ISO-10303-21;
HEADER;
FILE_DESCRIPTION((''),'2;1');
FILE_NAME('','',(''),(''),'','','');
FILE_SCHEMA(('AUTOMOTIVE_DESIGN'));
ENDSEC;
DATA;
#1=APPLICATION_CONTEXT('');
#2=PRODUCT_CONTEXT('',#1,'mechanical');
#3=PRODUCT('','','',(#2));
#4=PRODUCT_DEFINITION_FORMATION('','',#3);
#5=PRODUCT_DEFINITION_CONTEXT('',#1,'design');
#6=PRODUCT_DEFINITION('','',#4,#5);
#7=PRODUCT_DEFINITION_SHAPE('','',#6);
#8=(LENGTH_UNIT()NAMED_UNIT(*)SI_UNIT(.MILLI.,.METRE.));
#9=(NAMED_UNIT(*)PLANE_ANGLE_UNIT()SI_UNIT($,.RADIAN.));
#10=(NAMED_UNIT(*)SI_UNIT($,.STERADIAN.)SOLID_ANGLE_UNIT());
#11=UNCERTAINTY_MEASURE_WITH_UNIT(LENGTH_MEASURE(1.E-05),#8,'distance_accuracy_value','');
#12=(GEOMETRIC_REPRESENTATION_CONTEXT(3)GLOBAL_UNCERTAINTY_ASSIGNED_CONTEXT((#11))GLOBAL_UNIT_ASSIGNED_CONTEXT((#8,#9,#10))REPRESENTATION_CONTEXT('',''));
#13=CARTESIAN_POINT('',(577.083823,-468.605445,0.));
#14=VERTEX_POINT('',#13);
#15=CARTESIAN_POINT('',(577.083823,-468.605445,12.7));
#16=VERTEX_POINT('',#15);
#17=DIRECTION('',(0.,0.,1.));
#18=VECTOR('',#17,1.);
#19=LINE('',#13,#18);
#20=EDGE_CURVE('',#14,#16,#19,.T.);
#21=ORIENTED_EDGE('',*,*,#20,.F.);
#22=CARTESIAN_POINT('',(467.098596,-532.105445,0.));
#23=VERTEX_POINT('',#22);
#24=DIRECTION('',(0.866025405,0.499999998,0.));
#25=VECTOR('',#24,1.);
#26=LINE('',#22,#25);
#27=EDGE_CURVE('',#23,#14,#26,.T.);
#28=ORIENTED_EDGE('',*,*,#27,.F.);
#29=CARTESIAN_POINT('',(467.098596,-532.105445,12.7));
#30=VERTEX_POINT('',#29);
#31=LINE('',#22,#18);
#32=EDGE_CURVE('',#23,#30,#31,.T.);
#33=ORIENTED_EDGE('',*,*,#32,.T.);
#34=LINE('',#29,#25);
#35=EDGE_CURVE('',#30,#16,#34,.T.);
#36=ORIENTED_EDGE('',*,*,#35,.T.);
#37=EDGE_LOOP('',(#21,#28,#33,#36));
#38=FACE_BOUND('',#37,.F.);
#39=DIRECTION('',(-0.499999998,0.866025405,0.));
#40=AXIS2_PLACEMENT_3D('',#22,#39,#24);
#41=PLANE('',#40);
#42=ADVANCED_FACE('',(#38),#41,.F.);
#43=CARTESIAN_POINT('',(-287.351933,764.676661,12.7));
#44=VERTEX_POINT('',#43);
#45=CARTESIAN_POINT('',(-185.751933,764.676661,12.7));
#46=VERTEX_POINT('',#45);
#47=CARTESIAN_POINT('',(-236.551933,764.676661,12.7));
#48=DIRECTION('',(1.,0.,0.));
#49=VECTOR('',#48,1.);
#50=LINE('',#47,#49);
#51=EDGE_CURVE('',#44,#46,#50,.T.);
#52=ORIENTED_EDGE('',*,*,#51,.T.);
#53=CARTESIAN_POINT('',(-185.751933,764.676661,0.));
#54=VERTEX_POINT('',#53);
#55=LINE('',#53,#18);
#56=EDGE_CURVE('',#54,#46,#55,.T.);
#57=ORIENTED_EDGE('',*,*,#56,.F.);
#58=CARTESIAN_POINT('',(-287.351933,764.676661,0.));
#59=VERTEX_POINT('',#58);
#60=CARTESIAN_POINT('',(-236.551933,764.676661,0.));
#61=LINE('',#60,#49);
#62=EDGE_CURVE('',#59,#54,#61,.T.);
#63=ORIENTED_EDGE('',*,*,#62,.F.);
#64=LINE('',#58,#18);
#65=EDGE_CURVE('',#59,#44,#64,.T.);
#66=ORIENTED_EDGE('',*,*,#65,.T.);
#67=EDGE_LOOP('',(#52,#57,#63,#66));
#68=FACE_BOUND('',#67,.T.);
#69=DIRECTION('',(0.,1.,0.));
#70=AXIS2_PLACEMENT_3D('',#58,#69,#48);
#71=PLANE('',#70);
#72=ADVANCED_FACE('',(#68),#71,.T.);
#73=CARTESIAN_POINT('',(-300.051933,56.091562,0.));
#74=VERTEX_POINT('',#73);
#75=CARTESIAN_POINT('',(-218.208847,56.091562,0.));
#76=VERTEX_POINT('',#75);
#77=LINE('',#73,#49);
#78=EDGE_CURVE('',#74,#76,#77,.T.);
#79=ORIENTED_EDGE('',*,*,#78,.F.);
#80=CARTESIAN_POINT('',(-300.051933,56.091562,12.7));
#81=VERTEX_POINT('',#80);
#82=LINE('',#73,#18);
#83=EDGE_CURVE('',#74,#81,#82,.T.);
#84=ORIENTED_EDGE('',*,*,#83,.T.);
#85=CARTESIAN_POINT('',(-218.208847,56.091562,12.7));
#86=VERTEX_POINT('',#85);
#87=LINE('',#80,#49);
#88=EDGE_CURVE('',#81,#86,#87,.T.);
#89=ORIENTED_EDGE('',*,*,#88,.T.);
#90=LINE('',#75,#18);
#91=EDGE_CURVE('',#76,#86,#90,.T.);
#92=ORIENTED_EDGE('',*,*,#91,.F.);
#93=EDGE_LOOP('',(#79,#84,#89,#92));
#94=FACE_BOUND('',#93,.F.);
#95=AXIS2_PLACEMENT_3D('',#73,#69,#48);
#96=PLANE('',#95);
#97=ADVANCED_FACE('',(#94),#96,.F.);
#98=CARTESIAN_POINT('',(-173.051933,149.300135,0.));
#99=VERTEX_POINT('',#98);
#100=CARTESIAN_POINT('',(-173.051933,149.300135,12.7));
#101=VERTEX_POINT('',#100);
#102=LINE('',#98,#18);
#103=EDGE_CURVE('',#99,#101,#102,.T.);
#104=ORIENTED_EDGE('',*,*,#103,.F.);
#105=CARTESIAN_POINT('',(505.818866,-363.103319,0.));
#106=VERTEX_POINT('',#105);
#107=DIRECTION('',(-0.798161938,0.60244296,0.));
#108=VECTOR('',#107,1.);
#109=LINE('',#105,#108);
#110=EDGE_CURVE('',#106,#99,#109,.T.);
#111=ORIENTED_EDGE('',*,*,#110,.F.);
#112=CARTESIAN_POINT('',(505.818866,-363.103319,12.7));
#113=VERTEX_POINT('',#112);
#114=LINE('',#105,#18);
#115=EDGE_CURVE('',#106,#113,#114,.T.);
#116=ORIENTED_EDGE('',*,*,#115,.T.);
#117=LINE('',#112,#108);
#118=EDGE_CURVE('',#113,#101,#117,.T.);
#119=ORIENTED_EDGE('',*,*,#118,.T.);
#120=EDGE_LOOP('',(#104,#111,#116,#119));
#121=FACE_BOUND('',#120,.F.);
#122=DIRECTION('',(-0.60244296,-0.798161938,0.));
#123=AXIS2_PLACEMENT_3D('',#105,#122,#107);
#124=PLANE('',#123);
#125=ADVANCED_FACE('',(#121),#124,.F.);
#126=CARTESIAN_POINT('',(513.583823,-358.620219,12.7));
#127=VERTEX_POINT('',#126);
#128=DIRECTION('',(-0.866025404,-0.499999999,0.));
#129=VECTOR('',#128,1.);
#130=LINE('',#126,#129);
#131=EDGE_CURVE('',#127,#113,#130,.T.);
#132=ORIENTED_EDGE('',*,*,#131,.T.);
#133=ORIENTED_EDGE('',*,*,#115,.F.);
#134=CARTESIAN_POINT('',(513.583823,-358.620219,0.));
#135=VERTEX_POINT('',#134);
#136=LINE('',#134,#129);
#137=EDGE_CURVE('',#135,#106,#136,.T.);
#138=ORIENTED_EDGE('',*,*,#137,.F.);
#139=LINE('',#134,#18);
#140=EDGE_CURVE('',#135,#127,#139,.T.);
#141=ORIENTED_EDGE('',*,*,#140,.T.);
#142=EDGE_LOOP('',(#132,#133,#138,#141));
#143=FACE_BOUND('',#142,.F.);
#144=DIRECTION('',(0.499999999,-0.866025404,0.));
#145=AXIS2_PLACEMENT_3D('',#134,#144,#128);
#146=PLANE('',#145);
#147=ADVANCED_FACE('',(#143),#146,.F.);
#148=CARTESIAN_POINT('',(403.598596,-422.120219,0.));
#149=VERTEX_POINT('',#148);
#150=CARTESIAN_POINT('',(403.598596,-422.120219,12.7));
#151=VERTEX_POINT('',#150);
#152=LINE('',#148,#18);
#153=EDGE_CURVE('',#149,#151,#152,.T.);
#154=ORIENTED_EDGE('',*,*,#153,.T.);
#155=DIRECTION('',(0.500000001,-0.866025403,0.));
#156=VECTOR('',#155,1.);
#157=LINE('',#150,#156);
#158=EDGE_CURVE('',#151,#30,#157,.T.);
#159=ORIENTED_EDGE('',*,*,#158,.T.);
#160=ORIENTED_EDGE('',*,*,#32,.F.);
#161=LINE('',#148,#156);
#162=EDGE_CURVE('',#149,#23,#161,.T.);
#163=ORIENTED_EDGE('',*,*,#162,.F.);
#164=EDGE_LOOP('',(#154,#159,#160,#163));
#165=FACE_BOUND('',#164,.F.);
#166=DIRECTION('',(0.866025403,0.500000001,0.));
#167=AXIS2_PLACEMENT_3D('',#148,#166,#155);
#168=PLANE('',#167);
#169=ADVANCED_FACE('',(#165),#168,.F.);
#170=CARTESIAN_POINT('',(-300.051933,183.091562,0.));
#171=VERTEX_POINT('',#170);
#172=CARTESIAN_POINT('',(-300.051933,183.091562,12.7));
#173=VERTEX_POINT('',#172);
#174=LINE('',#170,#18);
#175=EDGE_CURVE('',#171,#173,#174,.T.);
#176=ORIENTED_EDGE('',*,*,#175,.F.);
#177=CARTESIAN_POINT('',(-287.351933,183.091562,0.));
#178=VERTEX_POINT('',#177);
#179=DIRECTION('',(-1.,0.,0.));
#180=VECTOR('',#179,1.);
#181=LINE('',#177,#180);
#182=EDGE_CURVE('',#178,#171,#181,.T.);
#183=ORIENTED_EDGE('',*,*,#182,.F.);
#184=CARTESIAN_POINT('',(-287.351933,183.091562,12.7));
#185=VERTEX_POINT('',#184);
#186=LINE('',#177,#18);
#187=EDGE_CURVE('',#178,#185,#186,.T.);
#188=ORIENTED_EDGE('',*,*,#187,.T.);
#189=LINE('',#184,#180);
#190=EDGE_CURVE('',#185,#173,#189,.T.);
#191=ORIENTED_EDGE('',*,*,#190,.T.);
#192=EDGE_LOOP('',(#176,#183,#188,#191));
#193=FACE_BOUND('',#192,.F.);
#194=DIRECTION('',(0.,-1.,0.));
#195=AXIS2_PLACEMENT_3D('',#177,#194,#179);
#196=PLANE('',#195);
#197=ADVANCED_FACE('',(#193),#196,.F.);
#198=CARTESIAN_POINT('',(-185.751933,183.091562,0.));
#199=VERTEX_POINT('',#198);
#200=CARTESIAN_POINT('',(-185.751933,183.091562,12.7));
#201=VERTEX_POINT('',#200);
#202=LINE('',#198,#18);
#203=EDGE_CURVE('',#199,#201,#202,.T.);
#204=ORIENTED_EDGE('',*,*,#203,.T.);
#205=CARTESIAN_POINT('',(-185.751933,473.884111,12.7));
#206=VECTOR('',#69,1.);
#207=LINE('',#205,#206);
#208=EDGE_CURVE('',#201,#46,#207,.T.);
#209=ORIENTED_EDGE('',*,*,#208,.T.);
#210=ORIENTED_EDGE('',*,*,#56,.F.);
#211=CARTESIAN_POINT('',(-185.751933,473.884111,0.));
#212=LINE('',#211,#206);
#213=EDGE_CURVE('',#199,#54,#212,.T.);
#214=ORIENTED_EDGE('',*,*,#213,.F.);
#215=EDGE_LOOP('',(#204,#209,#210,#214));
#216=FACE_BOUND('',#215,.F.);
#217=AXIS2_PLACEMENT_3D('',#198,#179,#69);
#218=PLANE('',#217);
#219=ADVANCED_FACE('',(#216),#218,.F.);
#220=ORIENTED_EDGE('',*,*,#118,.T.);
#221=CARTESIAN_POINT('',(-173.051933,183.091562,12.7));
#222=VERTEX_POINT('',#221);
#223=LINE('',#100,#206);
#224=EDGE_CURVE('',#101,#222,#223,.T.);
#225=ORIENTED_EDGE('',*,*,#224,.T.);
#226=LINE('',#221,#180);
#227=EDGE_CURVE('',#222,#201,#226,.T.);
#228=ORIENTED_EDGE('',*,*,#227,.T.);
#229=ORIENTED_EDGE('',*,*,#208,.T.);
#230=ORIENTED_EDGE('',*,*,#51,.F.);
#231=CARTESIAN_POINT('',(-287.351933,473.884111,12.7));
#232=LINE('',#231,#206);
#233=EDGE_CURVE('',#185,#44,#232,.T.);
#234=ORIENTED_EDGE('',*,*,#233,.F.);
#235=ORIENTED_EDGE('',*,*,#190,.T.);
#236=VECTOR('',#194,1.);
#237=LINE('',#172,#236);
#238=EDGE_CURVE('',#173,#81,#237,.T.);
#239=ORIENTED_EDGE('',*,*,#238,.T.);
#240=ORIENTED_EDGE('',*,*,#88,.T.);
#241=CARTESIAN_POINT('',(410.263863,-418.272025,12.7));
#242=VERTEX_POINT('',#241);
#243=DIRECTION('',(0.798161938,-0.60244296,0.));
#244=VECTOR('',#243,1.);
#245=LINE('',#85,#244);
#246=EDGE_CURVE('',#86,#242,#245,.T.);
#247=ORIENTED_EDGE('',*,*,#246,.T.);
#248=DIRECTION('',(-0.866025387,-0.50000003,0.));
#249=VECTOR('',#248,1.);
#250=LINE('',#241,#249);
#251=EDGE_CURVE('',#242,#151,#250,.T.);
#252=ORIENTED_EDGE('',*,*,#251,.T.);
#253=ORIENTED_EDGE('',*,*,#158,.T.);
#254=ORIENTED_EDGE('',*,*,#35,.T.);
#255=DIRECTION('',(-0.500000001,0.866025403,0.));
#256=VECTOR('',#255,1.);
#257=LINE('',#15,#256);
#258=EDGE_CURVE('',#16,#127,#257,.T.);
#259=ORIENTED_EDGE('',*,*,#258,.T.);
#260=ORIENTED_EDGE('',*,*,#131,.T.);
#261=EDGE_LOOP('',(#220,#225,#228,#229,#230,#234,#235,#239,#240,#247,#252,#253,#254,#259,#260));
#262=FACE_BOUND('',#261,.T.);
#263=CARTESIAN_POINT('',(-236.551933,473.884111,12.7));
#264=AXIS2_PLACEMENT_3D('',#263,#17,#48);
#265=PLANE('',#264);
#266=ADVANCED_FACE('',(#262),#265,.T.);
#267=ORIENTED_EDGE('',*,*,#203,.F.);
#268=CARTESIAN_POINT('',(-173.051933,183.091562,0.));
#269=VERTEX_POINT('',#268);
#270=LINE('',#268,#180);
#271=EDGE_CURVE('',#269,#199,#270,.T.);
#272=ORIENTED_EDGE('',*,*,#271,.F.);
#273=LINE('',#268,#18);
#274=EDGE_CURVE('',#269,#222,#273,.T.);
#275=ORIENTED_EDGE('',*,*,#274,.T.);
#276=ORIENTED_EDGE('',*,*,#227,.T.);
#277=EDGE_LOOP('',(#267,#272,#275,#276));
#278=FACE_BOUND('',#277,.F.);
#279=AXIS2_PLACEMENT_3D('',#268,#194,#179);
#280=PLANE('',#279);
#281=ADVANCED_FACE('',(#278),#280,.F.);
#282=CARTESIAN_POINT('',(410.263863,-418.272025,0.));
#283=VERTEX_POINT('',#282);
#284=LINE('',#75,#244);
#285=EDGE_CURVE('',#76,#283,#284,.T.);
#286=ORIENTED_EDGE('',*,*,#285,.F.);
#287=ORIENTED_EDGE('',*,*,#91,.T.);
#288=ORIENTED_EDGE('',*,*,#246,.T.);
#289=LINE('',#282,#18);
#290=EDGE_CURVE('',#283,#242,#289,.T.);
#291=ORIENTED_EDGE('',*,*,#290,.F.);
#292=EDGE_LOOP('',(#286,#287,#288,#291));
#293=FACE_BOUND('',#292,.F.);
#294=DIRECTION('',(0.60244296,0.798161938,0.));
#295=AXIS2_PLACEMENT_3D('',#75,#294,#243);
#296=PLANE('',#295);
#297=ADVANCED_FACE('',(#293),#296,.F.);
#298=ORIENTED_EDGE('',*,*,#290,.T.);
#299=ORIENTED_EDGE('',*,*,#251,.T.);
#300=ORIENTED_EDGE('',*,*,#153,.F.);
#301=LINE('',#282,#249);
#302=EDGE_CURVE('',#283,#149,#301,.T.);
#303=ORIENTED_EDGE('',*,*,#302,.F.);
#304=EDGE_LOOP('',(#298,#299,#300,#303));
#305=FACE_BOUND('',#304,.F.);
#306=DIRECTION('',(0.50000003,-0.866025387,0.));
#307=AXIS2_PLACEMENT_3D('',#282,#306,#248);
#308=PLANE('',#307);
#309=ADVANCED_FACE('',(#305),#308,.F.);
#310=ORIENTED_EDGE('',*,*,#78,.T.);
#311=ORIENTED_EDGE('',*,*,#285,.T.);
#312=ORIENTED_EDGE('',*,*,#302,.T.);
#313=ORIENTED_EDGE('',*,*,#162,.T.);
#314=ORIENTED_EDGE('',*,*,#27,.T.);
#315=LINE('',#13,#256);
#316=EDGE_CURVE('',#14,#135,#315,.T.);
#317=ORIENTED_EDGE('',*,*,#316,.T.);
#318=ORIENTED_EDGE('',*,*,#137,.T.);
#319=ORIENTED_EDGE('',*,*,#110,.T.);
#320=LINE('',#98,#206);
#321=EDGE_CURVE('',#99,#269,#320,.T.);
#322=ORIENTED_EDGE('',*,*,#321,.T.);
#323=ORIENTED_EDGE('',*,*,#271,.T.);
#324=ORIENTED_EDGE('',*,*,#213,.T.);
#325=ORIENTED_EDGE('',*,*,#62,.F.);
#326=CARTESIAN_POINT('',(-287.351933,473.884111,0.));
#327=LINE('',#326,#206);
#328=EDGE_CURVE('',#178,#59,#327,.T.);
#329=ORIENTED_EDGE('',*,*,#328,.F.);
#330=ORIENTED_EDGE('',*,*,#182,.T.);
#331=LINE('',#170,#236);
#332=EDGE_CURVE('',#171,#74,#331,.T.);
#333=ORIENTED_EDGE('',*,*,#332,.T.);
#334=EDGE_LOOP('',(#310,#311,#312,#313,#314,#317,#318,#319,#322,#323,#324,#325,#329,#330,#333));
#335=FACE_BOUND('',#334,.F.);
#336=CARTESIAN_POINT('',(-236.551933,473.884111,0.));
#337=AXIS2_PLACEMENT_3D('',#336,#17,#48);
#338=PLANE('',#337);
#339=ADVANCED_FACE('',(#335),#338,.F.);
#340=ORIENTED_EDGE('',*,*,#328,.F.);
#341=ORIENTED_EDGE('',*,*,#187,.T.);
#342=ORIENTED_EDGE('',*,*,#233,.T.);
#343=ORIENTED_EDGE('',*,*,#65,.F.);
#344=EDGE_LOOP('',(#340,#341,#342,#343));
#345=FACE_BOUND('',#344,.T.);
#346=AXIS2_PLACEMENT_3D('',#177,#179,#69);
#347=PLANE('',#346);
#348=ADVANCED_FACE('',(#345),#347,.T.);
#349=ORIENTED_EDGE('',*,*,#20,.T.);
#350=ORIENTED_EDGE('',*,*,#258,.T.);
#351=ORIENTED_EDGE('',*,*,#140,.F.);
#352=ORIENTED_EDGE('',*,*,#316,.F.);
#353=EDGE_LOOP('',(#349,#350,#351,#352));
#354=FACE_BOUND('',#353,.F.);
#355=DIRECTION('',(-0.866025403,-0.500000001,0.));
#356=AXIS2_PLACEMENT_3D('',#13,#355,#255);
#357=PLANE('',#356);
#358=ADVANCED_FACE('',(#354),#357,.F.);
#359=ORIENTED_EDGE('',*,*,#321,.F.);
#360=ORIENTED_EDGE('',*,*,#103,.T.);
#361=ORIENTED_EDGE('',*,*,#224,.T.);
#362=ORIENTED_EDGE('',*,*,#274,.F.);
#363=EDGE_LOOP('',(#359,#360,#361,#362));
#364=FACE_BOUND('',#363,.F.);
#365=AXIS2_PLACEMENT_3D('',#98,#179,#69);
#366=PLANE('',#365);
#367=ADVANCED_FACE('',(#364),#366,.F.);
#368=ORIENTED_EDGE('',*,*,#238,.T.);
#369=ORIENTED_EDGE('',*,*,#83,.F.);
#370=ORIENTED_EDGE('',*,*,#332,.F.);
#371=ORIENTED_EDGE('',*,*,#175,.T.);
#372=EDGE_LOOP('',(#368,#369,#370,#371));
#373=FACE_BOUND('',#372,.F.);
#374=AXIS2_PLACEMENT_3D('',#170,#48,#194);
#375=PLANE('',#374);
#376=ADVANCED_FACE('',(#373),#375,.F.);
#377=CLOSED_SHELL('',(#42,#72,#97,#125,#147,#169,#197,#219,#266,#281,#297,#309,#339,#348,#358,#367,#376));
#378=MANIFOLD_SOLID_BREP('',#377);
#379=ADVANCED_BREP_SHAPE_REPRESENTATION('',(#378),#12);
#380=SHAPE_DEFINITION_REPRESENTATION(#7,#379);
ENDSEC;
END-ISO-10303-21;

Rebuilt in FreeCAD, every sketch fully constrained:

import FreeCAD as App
import Part
import Sketcher
from FreeCAD import Vector
Q = App.Units.Quantity

doc = App.newDocument("Part")
body = doc.addObject("PartDesign::Body", "Body")

# Sketch on XY plane
sketch1 = body.newObject("Sketcher::SketchObject", "Sketch")
sketch1.AttachmentSupport = (doc.getObject("XY_Plane"), [""])
sketch1.MapMode = "FlatFace"
sketch1.addGeometry([
    Part.LineSegment(Vector(-173.051933, 183.091562, 0), Vector(-185.751933, 183.091562, 0)),  # 0
    Part.LineSegment(Vector(-185.751933, 183.091562, 0), Vector(-185.751933, 764.676661, 0)),  # 1
    Part.LineSegment(Vector(-185.751933, 764.676661, 0), Vector(-287.351933, 764.676661, 0)),  # 2
    Part.LineSegment(Vector(-287.351933, 764.676661, 0), Vector(-287.351933, 183.091562, 0)),  # 3
    Part.LineSegment(Vector(-287.351933, 183.091562, 0), Vector(-300.051933, 183.091562, 0)),  # 4
    Part.LineSegment(Vector(-300.051933, 183.091562, 0), Vector(-300.051933, 56.091562, 0)),  # 5
    Part.LineSegment(Vector(-300.051933, 56.091562, 0), Vector(-218.208847, 56.091562, 0)),  # 6
    Part.LineSegment(Vector(-218.208847, 56.091562, 0), Vector(410.263863, -418.272025, 0)),  # 7
    Part.LineSegment(Vector(410.263863, -418.272025, 0), Vector(403.598596, -422.120219, 0)),  # 8
    Part.LineSegment(Vector(403.598596, -422.120219, 0), Vector(467.098596, -532.105445, 0)),  # 9
    Part.LineSegment(Vector(467.098596, -532.105445, 0), Vector(577.083823, -468.605445, 0)),  # 10
    Part.LineSegment(Vector(577.083823, -468.605445, 0), Vector(513.583823, -358.620219, 0)),  # 11
    Part.LineSegment(Vector(513.583823, -358.620219, 0), Vector(505.818866, -363.103319, 0)),  # 12
    Part.LineSegment(Vector(505.818866, -363.103319, 0), Vector(-173.051933, 149.300135, 0)),  # 13
    Part.LineSegment(Vector(-173.051933, 149.300135, 0), Vector(-173.051933, 183.091562, 0)),  # 14
], False)
sketch1.addConstraint([
    Sketcher.Constraint("Coincident", 0, 2, 1, 1),
    Sketcher.Constraint("Coincident", 1, 2, 2, 1),
    Sketcher.Constraint("Coincident", 2, 2, 3, 1),
    Sketcher.Constraint("Coincident", 3, 2, 4, 1),
    Sketcher.Constraint("Coincident", 4, 2, 5, 1),
    Sketcher.Constraint("Coincident", 5, 2, 6, 1),
    Sketcher.Constraint("Coincident", 6, 2, 7, 1),
    Sketcher.Constraint("Coincident", 7, 2, 8, 1),
    Sketcher.Constraint("Coincident", 8, 2, 9, 1),
    Sketcher.Constraint("Coincident", 9, 2, 10, 1),
    Sketcher.Constraint("Coincident", 10, 2, 11, 1),
    Sketcher.Constraint("Coincident", 11, 2, 12, 1),
    Sketcher.Constraint("Coincident", 12, 2, 13, 1),
    Sketcher.Constraint("Coincident", 13, 2, 14, 1),
    Sketcher.Constraint("Coincident", 14, 2, 0, 1),
    Sketcher.Constraint("Horizontal", 0),
    Sketcher.Constraint("Vertical", 1),
    Sketcher.Constraint("Horizontal", 2),
    Sketcher.Constraint("Vertical", 3),
    Sketcher.Constraint("Horizontal", 4),
    Sketcher.Constraint("Vertical", 5),
    Sketcher.Constraint("Horizontal", 6),
    Sketcher.Constraint("Vertical", 14),
    Sketcher.Constraint("Perpendicular", 8, 9),
    Sketcher.Constraint("Perpendicular", 9, 10),
    Sketcher.Constraint("Perpendicular", 10, 11),
    Sketcher.Constraint("Perpendicular", 11, 12),
    Sketcher.Constraint("Parallel", 7, 13),
    Sketcher.Constraint("Horizontal", 0, 2, 3, 2),
    Sketcher.Constraint("Equal", 0, 4),
    Sketcher.Constraint("Equal", 9, 10),
    Sketcher.Constraint("Equal", 10, 11),
    Sketcher.Constraint("DistanceX", 2, 2, 2, 1, Q("4 in")),
    Sketcher.Constraint("DistanceY", 5, 2, 5, 1, Q("5 in")),
    Sketcher.Constraint("Distance", 7, Q("31 in")),
    Sketcher.Constraint("Distance", 9, Q("5 in")),
    Sketcher.Constraint("DistanceX", 0, 2, 0, 1, Q("0.5 in")),
    Sketcher.Constraint("Angle", 8, Q("-149.999998 deg")),
    Sketcher.Constraint("Distance", 12, Q("0.353 in")),
    Sketcher.Constraint("DistanceY", 1, 1, 1, 2, Q("581.585098 mm")),
    Sketcher.Constraint("DistanceX", 6, 1, 6, 2, Q("81.843086 mm")),
    Sketcher.Constraint("DistanceY", 14, 1, 14, 2, Q("33.791427 mm")),
    Sketcher.Constraint("DistanceY", -1, 1, 1, 2, Q("764.676661 mm")),
    Sketcher.Constraint("DistanceY", 8, 2, -1, 1, Q("422.120219 mm")),
    Sketcher.Constraint("DistanceX", 0, 2, -1, 1, Q("185.751933 mm")),
])
pad1 = body.newObject("PartDesign::Pad", "Pad")
pad1.Profile = sketch1
pad1.Length = Q("0.5 in")

doc.recompute()
